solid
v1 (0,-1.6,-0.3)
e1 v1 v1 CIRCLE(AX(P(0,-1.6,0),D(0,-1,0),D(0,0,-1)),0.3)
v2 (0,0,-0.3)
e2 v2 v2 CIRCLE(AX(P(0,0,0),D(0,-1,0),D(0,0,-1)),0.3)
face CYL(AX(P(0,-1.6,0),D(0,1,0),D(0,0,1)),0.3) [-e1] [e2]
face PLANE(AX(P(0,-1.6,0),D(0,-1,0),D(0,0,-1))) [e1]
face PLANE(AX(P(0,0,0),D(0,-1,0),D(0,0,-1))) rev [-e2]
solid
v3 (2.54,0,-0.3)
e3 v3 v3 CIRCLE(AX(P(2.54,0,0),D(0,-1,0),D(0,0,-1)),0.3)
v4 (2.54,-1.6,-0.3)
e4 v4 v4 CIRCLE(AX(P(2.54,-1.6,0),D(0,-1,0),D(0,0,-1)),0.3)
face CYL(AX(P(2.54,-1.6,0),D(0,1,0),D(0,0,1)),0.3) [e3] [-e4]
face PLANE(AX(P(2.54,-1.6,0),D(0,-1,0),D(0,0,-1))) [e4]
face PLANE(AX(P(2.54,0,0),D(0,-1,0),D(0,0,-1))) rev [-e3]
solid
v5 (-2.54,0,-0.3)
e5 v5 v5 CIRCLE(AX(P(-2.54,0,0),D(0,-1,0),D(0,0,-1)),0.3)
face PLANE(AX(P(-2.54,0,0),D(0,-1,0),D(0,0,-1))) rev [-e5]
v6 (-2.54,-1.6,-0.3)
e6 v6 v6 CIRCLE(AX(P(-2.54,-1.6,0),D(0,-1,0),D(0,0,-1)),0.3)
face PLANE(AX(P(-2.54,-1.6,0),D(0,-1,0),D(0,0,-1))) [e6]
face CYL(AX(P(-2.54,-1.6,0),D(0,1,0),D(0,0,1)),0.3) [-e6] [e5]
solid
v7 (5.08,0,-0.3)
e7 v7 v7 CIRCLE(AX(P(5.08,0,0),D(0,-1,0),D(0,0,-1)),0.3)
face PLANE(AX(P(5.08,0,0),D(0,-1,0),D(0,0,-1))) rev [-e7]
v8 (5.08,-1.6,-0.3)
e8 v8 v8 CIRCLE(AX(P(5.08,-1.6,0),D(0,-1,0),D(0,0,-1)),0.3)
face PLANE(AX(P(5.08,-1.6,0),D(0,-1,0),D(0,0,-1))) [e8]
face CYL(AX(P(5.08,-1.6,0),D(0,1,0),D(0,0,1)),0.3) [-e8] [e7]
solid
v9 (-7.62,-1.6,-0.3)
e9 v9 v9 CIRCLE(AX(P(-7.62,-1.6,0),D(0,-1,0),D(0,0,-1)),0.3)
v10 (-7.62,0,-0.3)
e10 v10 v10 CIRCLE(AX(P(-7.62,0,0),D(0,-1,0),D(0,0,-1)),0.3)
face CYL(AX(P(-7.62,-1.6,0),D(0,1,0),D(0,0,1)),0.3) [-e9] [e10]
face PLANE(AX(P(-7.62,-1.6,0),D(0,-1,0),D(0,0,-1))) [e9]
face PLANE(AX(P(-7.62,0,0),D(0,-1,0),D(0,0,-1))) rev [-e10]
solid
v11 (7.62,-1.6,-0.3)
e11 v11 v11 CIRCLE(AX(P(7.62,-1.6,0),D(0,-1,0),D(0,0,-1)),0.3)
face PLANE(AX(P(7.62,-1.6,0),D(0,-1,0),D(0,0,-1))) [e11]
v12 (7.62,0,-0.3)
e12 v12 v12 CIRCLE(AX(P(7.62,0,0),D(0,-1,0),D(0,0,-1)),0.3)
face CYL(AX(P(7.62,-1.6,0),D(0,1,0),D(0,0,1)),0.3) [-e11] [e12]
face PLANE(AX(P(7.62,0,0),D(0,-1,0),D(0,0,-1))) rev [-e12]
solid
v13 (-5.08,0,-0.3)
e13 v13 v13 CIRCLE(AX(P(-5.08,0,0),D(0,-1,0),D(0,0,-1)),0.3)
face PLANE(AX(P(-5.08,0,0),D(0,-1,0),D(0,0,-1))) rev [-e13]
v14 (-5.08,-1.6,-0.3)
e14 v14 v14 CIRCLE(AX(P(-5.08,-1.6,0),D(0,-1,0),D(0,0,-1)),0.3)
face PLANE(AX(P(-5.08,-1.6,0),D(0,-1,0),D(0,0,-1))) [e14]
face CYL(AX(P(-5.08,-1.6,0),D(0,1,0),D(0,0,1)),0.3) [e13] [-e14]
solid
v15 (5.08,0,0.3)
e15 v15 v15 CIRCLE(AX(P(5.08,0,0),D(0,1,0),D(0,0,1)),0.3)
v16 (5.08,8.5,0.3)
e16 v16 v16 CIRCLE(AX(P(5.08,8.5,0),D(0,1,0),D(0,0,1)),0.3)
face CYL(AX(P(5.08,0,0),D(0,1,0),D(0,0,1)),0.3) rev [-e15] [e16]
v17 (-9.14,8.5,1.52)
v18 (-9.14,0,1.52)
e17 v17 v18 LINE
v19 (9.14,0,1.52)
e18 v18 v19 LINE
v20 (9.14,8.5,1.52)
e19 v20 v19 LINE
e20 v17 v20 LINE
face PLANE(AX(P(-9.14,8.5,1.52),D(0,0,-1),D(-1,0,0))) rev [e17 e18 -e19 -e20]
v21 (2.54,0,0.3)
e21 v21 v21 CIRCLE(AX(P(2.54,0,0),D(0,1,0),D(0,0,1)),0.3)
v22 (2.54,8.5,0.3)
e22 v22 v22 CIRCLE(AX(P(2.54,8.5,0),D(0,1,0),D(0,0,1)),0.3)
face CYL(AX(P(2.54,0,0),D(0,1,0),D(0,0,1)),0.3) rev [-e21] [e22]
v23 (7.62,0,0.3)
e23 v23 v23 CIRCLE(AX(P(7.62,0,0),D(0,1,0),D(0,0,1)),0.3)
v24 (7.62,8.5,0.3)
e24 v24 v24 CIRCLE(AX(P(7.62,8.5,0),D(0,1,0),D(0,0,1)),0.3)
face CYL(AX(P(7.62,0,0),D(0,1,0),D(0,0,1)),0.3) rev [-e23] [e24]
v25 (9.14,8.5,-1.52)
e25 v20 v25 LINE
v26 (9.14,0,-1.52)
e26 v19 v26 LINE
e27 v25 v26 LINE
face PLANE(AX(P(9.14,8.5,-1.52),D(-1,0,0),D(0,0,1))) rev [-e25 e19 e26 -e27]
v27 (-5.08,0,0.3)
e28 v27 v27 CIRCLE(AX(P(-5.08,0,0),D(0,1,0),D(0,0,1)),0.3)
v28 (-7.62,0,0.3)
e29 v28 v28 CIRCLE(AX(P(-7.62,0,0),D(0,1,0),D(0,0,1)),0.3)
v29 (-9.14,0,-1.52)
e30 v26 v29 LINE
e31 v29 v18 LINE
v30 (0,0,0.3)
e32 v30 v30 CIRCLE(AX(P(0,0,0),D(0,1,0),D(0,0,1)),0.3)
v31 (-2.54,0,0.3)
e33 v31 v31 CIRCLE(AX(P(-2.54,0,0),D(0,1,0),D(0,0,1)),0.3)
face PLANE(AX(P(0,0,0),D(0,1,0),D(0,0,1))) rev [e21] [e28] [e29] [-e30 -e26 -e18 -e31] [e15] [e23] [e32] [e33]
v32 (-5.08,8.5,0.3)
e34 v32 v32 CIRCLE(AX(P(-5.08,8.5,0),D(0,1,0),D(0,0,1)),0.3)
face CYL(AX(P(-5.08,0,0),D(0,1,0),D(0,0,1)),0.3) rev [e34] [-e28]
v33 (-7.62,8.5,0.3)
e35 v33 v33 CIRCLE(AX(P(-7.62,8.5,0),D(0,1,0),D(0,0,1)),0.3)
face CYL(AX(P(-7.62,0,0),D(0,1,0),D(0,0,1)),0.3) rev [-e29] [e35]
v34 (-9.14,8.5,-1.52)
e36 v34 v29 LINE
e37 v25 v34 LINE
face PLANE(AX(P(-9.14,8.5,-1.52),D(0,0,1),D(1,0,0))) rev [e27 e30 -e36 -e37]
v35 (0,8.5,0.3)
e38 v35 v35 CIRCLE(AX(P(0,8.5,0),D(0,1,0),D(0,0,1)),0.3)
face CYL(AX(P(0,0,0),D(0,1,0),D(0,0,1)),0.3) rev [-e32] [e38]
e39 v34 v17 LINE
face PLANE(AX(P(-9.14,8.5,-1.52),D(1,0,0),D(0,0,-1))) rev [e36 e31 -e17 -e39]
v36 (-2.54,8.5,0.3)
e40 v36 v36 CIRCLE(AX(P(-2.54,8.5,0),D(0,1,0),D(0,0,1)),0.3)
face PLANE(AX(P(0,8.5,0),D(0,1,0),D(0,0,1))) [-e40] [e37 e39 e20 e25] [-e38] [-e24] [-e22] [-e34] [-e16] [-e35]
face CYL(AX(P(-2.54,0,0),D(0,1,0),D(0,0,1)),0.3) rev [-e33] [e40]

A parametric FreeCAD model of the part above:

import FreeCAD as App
import Part
import Sketcher

V = App.Vector

doc = App.newDocument("Part")
params = doc.addObject("Spreadsheet::Sheet", "Params")
for row, (alias, value) in enumerate([
    ("sketch1_width", "18.28 mm"),
    ("sketch1_height", "3.04 mm"),
    ("pad1_length", "8.5 mm"),
    ("sketch2_diameter", "0.6 mm"),
    ("pocket1_length", "8.5 mm"),
    ("sketch3_diameter", "0.6 mm"),
    ("pad2_length", "1.6 mm"),
    ("sketch4_diameter", "0.6 mm"),
    ("pad3_length", "1.6 mm"),
    ("sketch5_diameter", "0.6 mm"),
    ("pad4_length", "1.6 mm"),
    ("sketch6_diameter", "0.6 mm"),
    ("pad5_length", "1.6 mm"),
    ("sketch7_diameter", "0.6 mm"),
    ("pad6_length", "1.6 mm"),
    ("sketch8_diameter", "0.6 mm"),
    ("pad7_length", "1.6 mm"),
    ("sketch9_diameter", "0.6 mm"),
    ("pad8_length", "1.6 mm"),
], start=1):
    params.set(f"A{row}", alias)
    params.set(f"B{row}", "=" + value)
    params.setAlias(f"B{row}", alias)

body = doc.addObject("PartDesign::Body", "Body")

sketch1 = body.newObject("Sketcher::SketchObject", "Sketch")
sketch1.AttachmentSupport = (doc.getObject("XZ_Plane"), [""])
sketch1.MapMode = "FlatFace"
sketch1.addGeometry(Part.LineSegment(V(-9.14, -1.52, 0), V(-9.14, 1.52, 0)), False)
sketch1.addGeometry(Part.LineSegment(V(-9.14, 1.52, 0), V(9.14, 1.52, 0)), False)
sketch1.addGeometry(Part.LineSegment(V(9.14, 1.52, 0), V(9.14, -1.52, 0)), False)
sketch1.addGeometry(Part.LineSegment(V(9.14, -1.52, 0), V(-9.14, -1.52, 0)), False)
sketch1.addConstraint(Sketcher.Constraint("Coincident", 0, 2, 1, 1))
sketch1.addConstraint(Sketcher.Constraint("Coincident", 1, 2, 2, 1))
sketch1.addConstraint(Sketcher.Constraint("Coincident", 2, 2, 3, 1))
sketch1.addConstraint(Sketcher.Constraint("Coincident", 3, 2, 0, 1))
sketch1.addConstraint(Sketcher.Constraint("Vertical", 0))
sketch1.addConstraint(Sketcher.Constraint("Horizontal", 1))
sketch1.addConstraint(Sketcher.Constraint("Vertical", 2))
sketch1.addConstraint(Sketcher.Constraint("Horizontal", 3))
sketch1.addConstraint(Sketcher.Constraint("Symmetric", 0, 2, 2, 2, -1, 1))
sketch1.addConstraint(Sketcher.Constraint("DistanceX", 1, 1, 1, 2, 18.28))
sketch1.addConstraint(Sketcher.Constraint("DistanceY", 0, 1, 0, 2, 3.04))
sketch1.setExpression("Constraints[9]", "Params.sketch1_width")
sketch1.setExpression("Constraints[10]", "Params.sketch1_height")
pad1 = body.newObject("PartDesign::Pad", "Pad")
pad1.Profile = sketch1
pad1.setExpression("Length", "Params.pad1_length")
pad1.Reversed = True

sketch2 = body.newObject("Sketcher::SketchObject", "Sketch001")
sketch2.AttachmentSupport = (doc.getObject("XZ_Plane"), [""])
sketch2.MapMode = "FlatFace"
sketch2.AttachmentOffset = App.Placement(V(0, 0, -8.5), App.Rotation())
sketch2.addGeometry(Part.Circle(V(-7.62, 0, 0), V(0, 0, 1), 0.3), False)
sketch2.addGeometry(Part.Circle(V(-5.08, 0, 0), V(0, 0, 1), 0.3), False)
sketch2.addGeometry(Part.Circle(V(-2.54, 0, 0), V(0, 0, 1), 0.3), False)
sketch2.addGeometry(Part.Circle(V(0, 0, 0), V(0, 0, 1), 0.3), False)
sketch2.addGeometry(Part.Circle(V(2.54, 0, 0), V(0, 0, 1), 0.3), False)
sketch2.addGeometry(Part.Circle(V(5.08, 0, 0), V(0, 0, 1), 0.3), False)
sketch2.addGeometry(Part.Circle(V(7.62, 0, 0), V(0, 0, 1), 0.3), False)
sketch2.addConstraint(Sketcher.Constraint("Coincident", 3, 3, -1, 1))
sketch2.addConstraint(Sketcher.Constraint("Equal", 0, 1))
sketch2.addConstraint(Sketcher.Constraint("Equal", 1, 2))
sketch2.addConstraint(Sketcher.Constraint("Equal", 2, 3))
sketch2.addConstraint(Sketcher.Constraint("Equal", 3, 4))
sketch2.addConstraint(Sketcher.Constraint("Equal", 4, 5))
sketch2.addConstraint(Sketcher.Constraint("Equal", 5, 6))
sketch2.addConstraint(Sketcher.Constraint("Symmetric", 2, 3, 4, 3, -1, 1))
sketch2.addConstraint(Sketcher.Constraint("Symmetric", 1, 3, 5, 3, -1, 1))
sketch2.addConstraint(Sketcher.Constraint("Symmetric", 0, 3, 6, 3, -1, 1))
sketch2.addConstraint(Sketcher.Constraint("PointOnObject", 0, 3, -1))
sketch2.addConstraint(Sketcher.Constraint("PointOnObject", 1, 3, -1))
sketch2.addConstraint(Sketcher.Constraint("PointOnObject", 2, 3, -1))
sketch2.addConstraint(Sketcher.Constraint("Diameter", 0, 0.6))
sketch2.addConstraint(Sketcher.Constraint("DistanceX", 0, 3, 5, 3, 12.7))
sketch2.addConstraint(Sketcher.Constraint("DistanceX", 0, 3, -1, 1, 7.62))
sketch2.addConstraint(Sketcher.Constraint("DistanceX", 2, 3, -1, 1, 2.54))
sketch2.setExpression("Constraints[13]", "Params.sketch2_diameter")
pocket1 = body.newObject("PartDesign::Pocket", "Pocket")
pocket1.Profile = sketch2
pocket1.setExpression("Length", "Params.pocket1_length")
pocket1.Reversed = True
body2 = doc.addObject("PartDesign::Body", "Body001")

sketch3 = body2.newObject("Sketcher::SketchObject", "Sketch002")
sketch3.AttachmentSupport = (doc.getObject("XZ_Plane001"), [""])
sketch3.MapMode = "FlatFace"
sketch3.addGeometry(Part.Circle(V(-7.62, 0, 0), V(0, 0, 1), 0.3), False)
sketch3.addConstraint(Sketcher.Constraint("PointOnObject", 0, 3, -1))
sketch3.addConstraint(Sketcher.Constraint("Diameter", 0, 0.6))
sketch3.addConstraint(Sketcher.Constraint("DistanceX", 0, 3, -1, 1, 7.62))
sketch3.setExpression("Constraints[1]", "Params.sketch3_diameter")
pad2 = body2.newObject("PartDesign::Pad", "Pad001")
pad2.Profile = sketch3
pad2.setExpression("Length", "Params.pad2_length")
body3 = doc.addObject("PartDesign::Body", "Body002")

sketch4 = body3.newObject("Sketcher::SketchObject", "Sketch003")
sketch4.AttachmentSupport = (doc.getObject("XZ_Plane002"), [""])
sketch4.MapMode = "FlatFace"
sketch4.addGeometry(Part.Circle(V(-5.08, 0, 0), V(0, 0, 1), 0.3), False)
sketch4.addConstraint(Sketcher.Constraint("PointOnObject", 0, 3, -1))
sketch4.addConstraint(Sketcher.Constraint("Diameter", 0, 0.6))
sketch4.addConstraint(Sketcher.Constraint("DistanceX", 0, 3, -1, 1, 5.08))
sketch4.setExpression("Constraints[1]", "Params.sketch4_diameter")
pad3 = body3.newObject("PartDesign::Pad", "Pad002")
pad3.Profile = sketch4
pad3.setExpression("Length", "Params.pad3_length")
body4 = doc.addObject("PartDesign::Body", "Body003")

sketch5 = body4.newObject("Sketcher::SketchObject", "Sketch004")
sketch5.AttachmentSupport = (doc.getObject("XZ_Plane003"), [""])
sketch5.MapMode = "FlatFace"
sketch5.addGeometry(Part.Circle(V(-2.54, 0, 0), V(0, 0, 1), 0.3), False)
sketch5.addConstraint(Sketcher.Constraint("PointOnObject", 0, 3, -1))
sketch5.addConstraint(Sketcher.Constraint("Diameter", 0, 0.6))
sketch5.addConstraint(Sketcher.Constraint("DistanceX", 0, 3, -1, 1, 2.54))
sketch5.setExpression("Constraints[1]", "Params.sketch5_diameter")
pad4 = body4.newObject("PartDesign::Pad", "Pad003")
pad4.Profile = sketch5
pad4.setExpression("Length", "Params.pad4_length")
body5 = doc.addObject("PartDesign::Body", "Body004")

sketch6 = body5.newObject("Sketcher::SketchObject", "Sketch005")
sketch6.AttachmentSupport = (doc.getObject("XZ_Plane004"), [""])
sketch6.MapMode = "FlatFace"
sketch6.addGeometry(Part.Circle(V(0, 0, 0), V(0, 0, 1), 0.3), False)
sketch6.addConstraint(Sketcher.Constraint("Coincident", 0, 3, -1, 1))
sketch6.addConstraint(Sketcher.Constraint("Diameter", 0, 0.6))
sketch6.setExpression("Constraints[1]", "Params.sketch6_diameter")
pad5 = body5.newObject("PartDesign::Pad", "Pad004")
pad5.Profile = sketch6
pad5.setExpression("Length", "Params.pad5_length")
body6 = doc.addObject("PartDesign::Body", "Body005")

sketch7 = body6.newObject("Sketcher::SketchObject", "Sketch006")
sketch7.AttachmentSupport = (doc.getObject("XZ_Plane005"), [""])
sketch7.MapMode = "FlatFace"
sketch7.addGeometry(Part.Circle(V(2.54, 0, 0), V(0, 0, 1), 0.3), False)
sketch7.addConstraint(Sketcher.Constraint("PointOnObject", 0, 3, -1))
sketch7.addConstraint(Sketcher.Constraint("Diameter", 0, 0.6))
sketch7.addConstraint(Sketcher.Constraint("DistanceX", -1, 1, 0, 3, 2.54))
sketch7.setExpression("Constraints[1]", "Params.sketch7_diameter")
pad6 = body6.newObject("PartDesign::Pad", "Pad005")
pad6.Profile = sketch7
pad6.setExpression("Length", "Params.pad6_length")
body7 = doc.addObject("PartDesign::Body", "Body006")

sketch8 = body7.newObject("Sketcher::SketchObject", "Sketch007")
sketch8.AttachmentSupport = (doc.getObject("XZ_Plane006"), [""])
sketch8.MapMode = "FlatFace"
sketch8.addGeometry(Part.Circle(V(5.08, 0, 0), V(0, 0, 1), 0.3), False)
sketch8.addConstraint(Sketcher.Constraint("PointOnObject", 0, 3, -1))
sketch8.addConstraint(Sketcher.Constraint("Diameter", 0, 0.6))
sketch8.addConstraint(Sketcher.Constraint("DistanceX", -1, 1, 0, 3, 5.08))
sketch8.setExpression("Constraints[1]", "Params.sketch8_diameter")
pad7 = body7.newObject("PartDesign::Pad", "Pad006")
pad7.Profile = sketch8
pad7.setExpression("Length", "Params.pad7_length")
body8 = doc.addObject("PartDesign::Body", "Body007")

sketch9 = body8.newObject("Sketcher::SketchObject", "Sketch008")
sketch9.AttachmentSupport = (doc.getObject("XZ_Plane007"), [""])
sketch9.MapMode = "FlatFace"
sketch9.addGeometry(Part.Circle(V(7.62, 0, 0), V(0, 0, 1), 0.3), False)
sketch9.addConstraint(Sketcher.Constraint("PointOnObject", 0, 3, -1))
sketch9.addConstraint(Sketcher.Constraint("Diameter", 0, 0.6))
sketch9.addConstraint(Sketcher.Constraint("DistanceX", -1, 1, 0, 3, 7.62))
sketch9.setExpression("Constraints[1]", "Params.sketch9_diameter")
pad8 = body8.newObject("PartDesign::Pad", "Pad007")
pad8.Profile = sketch9
pad8.setExpression("Length", "Params.pad8_length")

doc.recompute()
